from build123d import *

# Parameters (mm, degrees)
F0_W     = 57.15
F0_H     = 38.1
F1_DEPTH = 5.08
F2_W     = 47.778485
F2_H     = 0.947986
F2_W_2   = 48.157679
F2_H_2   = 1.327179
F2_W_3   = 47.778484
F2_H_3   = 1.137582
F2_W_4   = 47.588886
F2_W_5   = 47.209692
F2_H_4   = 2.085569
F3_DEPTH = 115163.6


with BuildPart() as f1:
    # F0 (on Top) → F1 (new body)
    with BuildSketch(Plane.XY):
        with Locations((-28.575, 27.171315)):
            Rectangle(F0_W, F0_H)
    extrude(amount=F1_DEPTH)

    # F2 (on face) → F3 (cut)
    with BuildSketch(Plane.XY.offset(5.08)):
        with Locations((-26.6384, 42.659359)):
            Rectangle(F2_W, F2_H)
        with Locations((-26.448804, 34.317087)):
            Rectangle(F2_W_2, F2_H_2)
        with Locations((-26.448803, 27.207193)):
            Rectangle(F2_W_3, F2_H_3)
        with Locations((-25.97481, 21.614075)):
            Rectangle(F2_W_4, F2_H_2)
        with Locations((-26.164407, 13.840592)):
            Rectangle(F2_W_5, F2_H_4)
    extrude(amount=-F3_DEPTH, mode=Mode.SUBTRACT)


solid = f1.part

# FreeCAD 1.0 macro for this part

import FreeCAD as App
import Part
import Sketcher
Q = App.Units.Quantity

doc = App.newDocument("Part")
body = doc.addObject("PartDesign::Body", "Body")

# Sketch on XY plane
sketch1 = body.newObject("Sketcher::SketchObject", "Sketch")
sketch1.AttachmentSupport = (doc.getObject("XY_Plane"), [""])
sketch1.MapMode = "FlatFace"
sketch1.addGeometry([
    Part.LineSegment(App.Vector(-57.15, 46.221315, 0), App.Vector(-57.15, 8.121315, 0)),
    Part.LineSegment(App.Vector(-57.15, 8.121315, 0), App.Vector(0, 8.121315, 0)),
    Part.LineSegment(App.Vector(0, 8.121315, 0), App.Vector(0, 46.221315, 0)),
    Part.LineSegment(App.Vector(0, 46.221315, 0), App.Vector(-57.15, 46.221315, 0)),
], False)
sketch1.addConstraint([
    Sketcher.Constraint("Coincident", 0, 2, 1, 1),
    Sketcher.Constraint("Coincident", 1, 2, 2, 1),
    Sketcher.Constraint("Coincident", 2, 2, 3, 1),
    Sketcher.Constraint("Coincident", 3, 2, 0, 1),
    Sketcher.Constraint("Vertical", 0),
    Sketcher.Constraint("Horizontal", 1),
    Sketcher.Constraint("Vertical", 2),
    Sketcher.Constraint("Horizontal", 3),
    Sketcher.Constraint("PointOnObject", 1, 2, -2),
    Sketcher.Constraint("DistanceY", 0, 2, 0, 1, Q("1.5 in")),
    Sketcher.Constraint("DistanceX", 1, 1, 1, 2, Q("2.25 in")),
    Sketcher.Constraint("DistanceY", -1, 1, 0, 2, Q("8.121315 mm")),
])
pad1 = body.newObject("PartDesign::Pad", "Pad")
pad1.Profile = sketch1
pad1.Length = Q("0.2 in")

# Sketch on XY plane
sketch2 = body.newObject("Sketcher::SketchObject", "Sketch001")
sketch2.AttachmentSupport = (doc.getObject("XY_Plane"), [""])
sketch2.MapMode = "FlatFace"
sketch2.AttachmentOffset = App.Placement(App.Vector(0, 0, 0.2 * 25.4), App.Rotation())
sketch2.addGeometry([
    Part.LineSegment(App.Vector(-50.527642, 43.133352, 0), App.Vector(-50.527642, 42.185366, 0)),  # 0
    Part.LineSegment(App.Vector(-50.527642, 42.185366, 0), App.Vector(-2.749157, 42.185366, 0)),  # 1
    Part.LineSegment(App.Vector(-2.749157, 42.185366, 0), App.Vector(-2.749157, 43.133352, 0)),  # 2
    Part.LineSegment(App.Vector(-2.749157, 43.133352, 0), App.Vector(-50.527642, 43.133352, 0)),  # 3
    Part.LineSegment(App.Vector(-50.527644, 34.980677, 0), App.Vector(-50.527644, 33.653498, 0)),  # 4
    Part.LineSegment(App.Vector(-50.527644, 33.653498, 0), App.Vector(-2.369965, 33.653498, 0)),  # 5
    Part.LineSegment(App.Vector(-2.369965, 33.653498, 0), App.Vector(-2.369965, 34.980677, 0)),  # 6
    Part.LineSegment(App.Vector(-2.369965, 34.980677, 0), App.Vector(-50.527644, 34.980677, 0)),  # 7
    Part.LineSegment(App.Vector(-50.338045, 27.775984, 0), App.Vector(-50.338045, 26.638402, 0)),  # 8
    Part.LineSegment(App.Vector(-50.338045, 26.638402, 0), App.Vector(-2.559561, 26.638402, 0)),  # 9
    Part.LineSegment(App.Vector(-2.559561, 26.638402, 0), App.Vector(-2.559561, 27.775984, 0)),  # 10
    Part.LineSegment(App.Vector(-2.559561, 27.775984, 0), App.Vector(-50.338045, 27.775984, 0)),  # 11
    Part.LineSegment(App.Vector(-49.769253, 22.277665, 0), App.Vector(-49.769253, 20.950485, 0)),  # 12
    Part.LineSegment(App.Vector(-49.769253, 20.950485, 0), App.Vector(-2.180367, 20.950485, 0)),  # 13
    Part.LineSegment(App.Vector(-2.180367, 20.950485, 0), App.Vector(-2.180367, 22.277665, 0)),  # 14
    Part.LineSegment(App.Vector(-2.180367, 22.277665, 0), App.Vector(-49.769253, 22.277665, 0)),  # 15
    Part.LineSegment(App.Vector(-49.769253, 14.883377, 0), App.Vector(-49.769253, 12.797807, 0)),  # 16
    Part.LineSegment(App.Vector(-49.769253, 12.797807, 0), App.Vector(-2.559561, 12.797807, 0)),  # 17
    Part.LineSegment(App.Vector(-2.559561, 12.797807, 0), App.Vector(-2.559561, 14.883377, 0)),  # 18
    Part.LineSegment(App.Vector(-2.559561, 14.883377, 0), App.Vector(-49.769253, 14.883377, 0)),  # 19
], False)
sketch2.addConstraint([
    Sketcher.Constraint("Coincident", 0, 2, 1, 1),
    Sketcher.Constraint("Coincident", 1, 2, 2, 1),
    Sketcher.Constraint("Coincident", 2, 2, 3, 1),
    Sketcher.Constraint("Coincident", 3, 2, 0, 1),
    Sketcher.Constraint("Coincident", 4, 2, 5, 1),
    Sketcher.Constraint("Coincident", 5, 2, 6, 1),
    Sketcher.Constraint("Coincident", 6, 2, 7, 1),
    Sketcher.Constraint("Coincident", 7, 2, 4, 1),
    Sketcher.Constraint("Coincident", 8, 2, 9, 1),
    Sketcher.Constraint("Coincident", 9, 2, 10, 1),
    Sketcher.Constraint("Coincident", 10, 2, 11, 1),
    Sketcher.Constraint("Coincident", 11, 2, 8, 1),
    Sketcher.Constraint("Coincident", 12, 2, 13, 1),
    Sketcher.Constraint("Coincident", 13, 2, 14, 1),
    Sketcher.Constraint("Coincident", 14, 2, 15, 1),
    Sketcher.Constraint("Coincident", 15, 2, 12, 1),
    Sketcher.Constraint("Coincident", 16, 2, 17, 1),
    Sketcher.Constraint("Coincident", 17, 2, 18, 1),
    Sketcher.Constraint("Coincident", 18, 2, 19, 1),
    Sketcher.Constraint("Coincident", 19, 2, 16, 1),
    Sketcher.Constraint("Vertical", 0),
    Sketcher.Constraint("Horizontal", 1),
    Sketcher.Constraint("Vertical", 2),
    Sketcher.Constraint("Horizontal", 3),
    Sketcher.Constraint("Vertical", 4),
    Sketcher.Constraint("Horizontal", 5),
    Sketcher.Constraint("Vertical", 6),
    Sketcher.Constraint("Horizontal", 7),
    Sketcher.Constraint("Vertical", 8),
    Sketcher.Constraint("Horizontal", 9),
    Sketcher.Constraint("Vertical", 10),
    Sketcher.Constraint("Horizontal", 11),
    Sketcher.Constraint("Vertical", 12),
    Sketcher.Constraint("Horizontal", 13),
    Sketcher.Constraint("Vertical", 14),
    Sketcher.Constraint("Horizontal", 15),
    Sketcher.Constraint("Vertical", 16),
    Sketcher.Constraint("Horizontal", 17),
    Sketcher.Constraint("Vertical", 18),
    Sketcher.Constraint("Horizontal", 19),
    Sketcher.Constraint("Vertical", 3, 2, 4, 2),
    Sketcher.Constraint("Vertical", 15, 2, 16, 2),
    Sketcher.Constraint("Vertical", 10, 2, 17, 2),
    Sketcher.Constraint("Equal", 3, 9),
    Sketcher.Constraint("Equal", 6, 12),
    Sketcher.Constraint("DistanceX", 5, 1, 5, 2, Q("48.157679 mm")),
    Sketcher.Constraint("DistanceX", 17, 1, 17, 2, Q("47.209692 mm")),
    Sketcher.Constraint("DistanceY", 4, 2, 4, 1, Q("1.327179 mm")),
    Sketcher.Constraint("DistanceY", 16, 2, 16, 1, Q("2.085569 mm")),
    Sketcher.Constraint("DistanceY", -1, 1, 8, 2, Q("26.638402 mm")),
    Sketcher.Constraint("DistanceX", 4, 2, 8, 2, Q("0.189599 mm")),
    Sketcher.Constraint("DistanceY", 12, 2, 11, 2, Q("6.825499 mm")),
    Sketcher.Constraint("DistanceX", 1, 1, 1, 2, Q("47.778485 mm")),
    Sketcher.Constraint("DistanceX", 13, 1, 13, 2, Q("47.588886 mm")),
    Sketcher.Constraint("DistanceY", 0, 2, 0, 1, Q("0.947986 mm")),
    Sketcher.Constraint("DistanceY", 8, 2, 8, 1, Q("1.137582 mm")),
    Sketcher.Constraint("DistanceX", 9, 2, -1, 1, Q("2.559561 mm")),
    Sketcher.Constraint("DistanceY", 4, 2, 0, 2, Q("8.531869 mm")),
    Sketcher.Constraint("DistanceY", 8, 2, 3, 2, Q("16.49495 mm")),
    Sketcher.Constraint("DistanceY", 16, 2, 4, 2, Q("20.85569 mm")),
])
pocket1 = body.newObject("PartDesign::Pocket", "Pocket")
pocket1.Profile = sketch2
pocket1.Length = Q("4534 in")

doc.recompute()
